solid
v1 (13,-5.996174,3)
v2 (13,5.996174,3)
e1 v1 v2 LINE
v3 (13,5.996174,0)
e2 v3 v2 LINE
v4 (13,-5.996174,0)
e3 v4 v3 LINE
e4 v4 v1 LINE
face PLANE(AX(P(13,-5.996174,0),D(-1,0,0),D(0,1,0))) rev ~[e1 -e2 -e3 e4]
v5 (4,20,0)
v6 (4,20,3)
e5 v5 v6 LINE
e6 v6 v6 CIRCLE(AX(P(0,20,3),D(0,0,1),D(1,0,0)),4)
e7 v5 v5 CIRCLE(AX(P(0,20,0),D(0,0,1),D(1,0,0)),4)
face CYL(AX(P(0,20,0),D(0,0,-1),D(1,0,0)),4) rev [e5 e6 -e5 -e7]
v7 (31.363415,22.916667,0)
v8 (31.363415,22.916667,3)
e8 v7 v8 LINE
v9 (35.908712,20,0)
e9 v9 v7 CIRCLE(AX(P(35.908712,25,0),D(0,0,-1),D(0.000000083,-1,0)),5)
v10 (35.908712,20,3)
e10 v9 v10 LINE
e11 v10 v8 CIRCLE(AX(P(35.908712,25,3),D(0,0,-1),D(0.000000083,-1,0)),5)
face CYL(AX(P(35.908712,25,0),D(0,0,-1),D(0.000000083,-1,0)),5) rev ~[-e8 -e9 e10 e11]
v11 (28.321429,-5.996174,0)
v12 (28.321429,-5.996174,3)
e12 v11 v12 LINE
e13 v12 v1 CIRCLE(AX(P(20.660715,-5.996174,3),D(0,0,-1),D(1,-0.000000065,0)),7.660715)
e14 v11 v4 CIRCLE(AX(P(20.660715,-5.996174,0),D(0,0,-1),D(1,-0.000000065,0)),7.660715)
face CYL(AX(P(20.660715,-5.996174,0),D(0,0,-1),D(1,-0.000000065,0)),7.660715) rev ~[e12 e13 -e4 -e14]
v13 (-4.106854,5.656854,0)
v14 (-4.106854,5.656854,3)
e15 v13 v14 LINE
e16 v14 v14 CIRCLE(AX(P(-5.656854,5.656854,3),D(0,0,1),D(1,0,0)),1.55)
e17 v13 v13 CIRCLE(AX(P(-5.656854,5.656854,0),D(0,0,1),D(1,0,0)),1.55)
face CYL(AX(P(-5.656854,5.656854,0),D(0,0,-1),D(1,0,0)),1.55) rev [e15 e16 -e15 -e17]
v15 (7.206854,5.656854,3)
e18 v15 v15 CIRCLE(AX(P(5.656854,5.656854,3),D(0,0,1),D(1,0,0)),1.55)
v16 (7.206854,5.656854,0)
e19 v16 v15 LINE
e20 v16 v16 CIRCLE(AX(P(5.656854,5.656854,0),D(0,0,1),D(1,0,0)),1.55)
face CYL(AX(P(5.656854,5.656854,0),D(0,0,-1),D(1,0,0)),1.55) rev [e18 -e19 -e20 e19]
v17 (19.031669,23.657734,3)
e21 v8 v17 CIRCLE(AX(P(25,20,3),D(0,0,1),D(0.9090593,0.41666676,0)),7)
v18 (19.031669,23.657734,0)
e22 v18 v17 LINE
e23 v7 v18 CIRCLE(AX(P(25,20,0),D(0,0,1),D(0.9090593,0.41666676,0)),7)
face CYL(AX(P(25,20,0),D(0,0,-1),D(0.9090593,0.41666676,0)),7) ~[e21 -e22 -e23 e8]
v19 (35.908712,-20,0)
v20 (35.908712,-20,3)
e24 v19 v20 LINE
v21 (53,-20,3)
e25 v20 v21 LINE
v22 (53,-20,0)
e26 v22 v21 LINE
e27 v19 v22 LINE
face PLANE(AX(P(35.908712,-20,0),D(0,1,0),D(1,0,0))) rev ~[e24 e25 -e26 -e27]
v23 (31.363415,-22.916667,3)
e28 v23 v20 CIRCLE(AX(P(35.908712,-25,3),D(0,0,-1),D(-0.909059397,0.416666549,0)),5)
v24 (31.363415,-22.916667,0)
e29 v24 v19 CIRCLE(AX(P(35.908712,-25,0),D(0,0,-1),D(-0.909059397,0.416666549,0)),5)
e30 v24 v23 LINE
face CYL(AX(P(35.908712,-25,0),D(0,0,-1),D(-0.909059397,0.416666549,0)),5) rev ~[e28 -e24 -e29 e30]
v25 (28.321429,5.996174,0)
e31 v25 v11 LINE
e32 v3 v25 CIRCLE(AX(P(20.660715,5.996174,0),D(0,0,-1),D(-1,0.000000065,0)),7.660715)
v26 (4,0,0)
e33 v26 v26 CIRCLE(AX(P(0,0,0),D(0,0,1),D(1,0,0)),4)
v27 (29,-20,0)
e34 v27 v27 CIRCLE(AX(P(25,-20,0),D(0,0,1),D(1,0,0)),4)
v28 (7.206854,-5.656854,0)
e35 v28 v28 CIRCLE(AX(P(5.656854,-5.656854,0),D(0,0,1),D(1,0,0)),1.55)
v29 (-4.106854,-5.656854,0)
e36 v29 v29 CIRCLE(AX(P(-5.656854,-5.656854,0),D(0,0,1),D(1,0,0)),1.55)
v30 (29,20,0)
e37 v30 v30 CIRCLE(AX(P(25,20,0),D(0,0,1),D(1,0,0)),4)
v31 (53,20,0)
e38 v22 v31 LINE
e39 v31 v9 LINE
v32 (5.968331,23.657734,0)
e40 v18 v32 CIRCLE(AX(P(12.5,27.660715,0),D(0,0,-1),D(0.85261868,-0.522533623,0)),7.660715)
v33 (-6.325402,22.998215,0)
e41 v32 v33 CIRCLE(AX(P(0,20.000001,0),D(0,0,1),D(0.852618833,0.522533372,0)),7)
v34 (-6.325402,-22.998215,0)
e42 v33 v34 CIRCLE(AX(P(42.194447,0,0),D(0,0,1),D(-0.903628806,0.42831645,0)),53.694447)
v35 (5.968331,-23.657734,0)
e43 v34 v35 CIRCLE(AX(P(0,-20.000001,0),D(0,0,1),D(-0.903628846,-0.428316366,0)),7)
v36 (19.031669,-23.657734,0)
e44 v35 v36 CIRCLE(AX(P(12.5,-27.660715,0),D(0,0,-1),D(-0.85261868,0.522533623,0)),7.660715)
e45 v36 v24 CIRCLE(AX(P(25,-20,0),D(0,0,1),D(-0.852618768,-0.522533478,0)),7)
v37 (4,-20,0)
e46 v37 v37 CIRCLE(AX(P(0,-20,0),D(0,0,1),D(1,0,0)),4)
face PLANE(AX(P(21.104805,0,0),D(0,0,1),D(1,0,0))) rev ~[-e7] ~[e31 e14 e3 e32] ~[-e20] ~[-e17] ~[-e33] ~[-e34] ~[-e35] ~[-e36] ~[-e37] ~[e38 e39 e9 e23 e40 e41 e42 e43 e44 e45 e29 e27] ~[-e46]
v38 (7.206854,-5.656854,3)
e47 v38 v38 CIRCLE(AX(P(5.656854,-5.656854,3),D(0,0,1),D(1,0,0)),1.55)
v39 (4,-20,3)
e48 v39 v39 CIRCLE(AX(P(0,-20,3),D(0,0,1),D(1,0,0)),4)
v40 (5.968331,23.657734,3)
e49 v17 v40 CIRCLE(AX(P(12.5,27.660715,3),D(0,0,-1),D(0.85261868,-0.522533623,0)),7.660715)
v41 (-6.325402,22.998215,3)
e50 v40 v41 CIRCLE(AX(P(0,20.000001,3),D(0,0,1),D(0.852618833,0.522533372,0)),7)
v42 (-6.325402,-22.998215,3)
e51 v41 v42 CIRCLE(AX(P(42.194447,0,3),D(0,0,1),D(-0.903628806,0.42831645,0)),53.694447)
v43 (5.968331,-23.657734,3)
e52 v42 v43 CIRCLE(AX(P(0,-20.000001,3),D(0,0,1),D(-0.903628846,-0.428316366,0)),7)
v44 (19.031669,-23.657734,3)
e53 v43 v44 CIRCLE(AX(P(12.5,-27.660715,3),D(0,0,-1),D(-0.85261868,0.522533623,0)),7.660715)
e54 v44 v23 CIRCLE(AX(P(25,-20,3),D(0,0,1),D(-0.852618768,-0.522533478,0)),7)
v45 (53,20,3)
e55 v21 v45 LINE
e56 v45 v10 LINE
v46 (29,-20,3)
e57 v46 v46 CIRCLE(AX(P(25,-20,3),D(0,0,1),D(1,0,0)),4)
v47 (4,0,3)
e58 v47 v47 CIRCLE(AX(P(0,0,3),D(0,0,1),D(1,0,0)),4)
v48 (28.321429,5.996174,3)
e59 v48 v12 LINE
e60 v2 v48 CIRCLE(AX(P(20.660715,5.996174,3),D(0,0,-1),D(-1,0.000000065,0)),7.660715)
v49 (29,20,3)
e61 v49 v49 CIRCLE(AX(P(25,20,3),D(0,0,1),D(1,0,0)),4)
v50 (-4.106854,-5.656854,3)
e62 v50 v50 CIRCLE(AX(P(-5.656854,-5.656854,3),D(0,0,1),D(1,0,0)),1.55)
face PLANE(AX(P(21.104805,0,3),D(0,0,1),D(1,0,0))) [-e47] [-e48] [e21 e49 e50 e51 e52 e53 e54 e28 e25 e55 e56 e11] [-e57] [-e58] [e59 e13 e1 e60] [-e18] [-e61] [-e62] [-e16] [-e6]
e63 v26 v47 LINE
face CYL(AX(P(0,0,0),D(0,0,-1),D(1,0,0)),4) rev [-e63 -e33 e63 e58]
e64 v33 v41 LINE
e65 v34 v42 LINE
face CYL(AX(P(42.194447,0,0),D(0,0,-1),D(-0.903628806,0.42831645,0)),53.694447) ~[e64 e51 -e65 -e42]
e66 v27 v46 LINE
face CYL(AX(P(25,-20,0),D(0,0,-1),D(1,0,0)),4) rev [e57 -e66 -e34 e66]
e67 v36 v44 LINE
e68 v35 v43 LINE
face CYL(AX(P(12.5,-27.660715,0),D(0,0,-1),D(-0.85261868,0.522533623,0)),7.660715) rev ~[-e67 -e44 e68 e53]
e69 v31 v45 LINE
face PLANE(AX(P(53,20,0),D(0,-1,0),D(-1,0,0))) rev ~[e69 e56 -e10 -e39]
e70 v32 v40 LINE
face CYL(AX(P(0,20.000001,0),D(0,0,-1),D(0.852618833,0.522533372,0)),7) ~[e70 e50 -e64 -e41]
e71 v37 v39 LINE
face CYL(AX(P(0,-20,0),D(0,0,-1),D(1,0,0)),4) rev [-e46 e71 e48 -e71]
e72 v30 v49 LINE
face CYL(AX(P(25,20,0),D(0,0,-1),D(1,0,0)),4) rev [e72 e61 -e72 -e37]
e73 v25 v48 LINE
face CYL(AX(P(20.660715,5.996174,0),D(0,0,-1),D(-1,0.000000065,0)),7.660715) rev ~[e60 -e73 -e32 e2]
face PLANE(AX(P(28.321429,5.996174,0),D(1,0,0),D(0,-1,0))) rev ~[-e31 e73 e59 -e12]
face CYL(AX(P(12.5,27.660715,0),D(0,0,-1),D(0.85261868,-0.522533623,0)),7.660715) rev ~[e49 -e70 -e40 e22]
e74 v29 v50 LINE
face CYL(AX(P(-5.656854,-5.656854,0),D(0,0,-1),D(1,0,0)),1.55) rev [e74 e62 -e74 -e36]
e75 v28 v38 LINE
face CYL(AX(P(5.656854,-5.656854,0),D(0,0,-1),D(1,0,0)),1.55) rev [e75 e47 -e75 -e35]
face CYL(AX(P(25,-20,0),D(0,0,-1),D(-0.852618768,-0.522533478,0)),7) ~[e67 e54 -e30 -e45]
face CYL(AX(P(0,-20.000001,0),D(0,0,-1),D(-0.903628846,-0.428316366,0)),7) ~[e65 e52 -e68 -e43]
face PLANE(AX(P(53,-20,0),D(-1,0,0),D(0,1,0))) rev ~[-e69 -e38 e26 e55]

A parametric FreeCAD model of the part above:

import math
import FreeCAD as App
import Part
import Sketcher

V = App.Vector

doc = App.newDocument("Part")
body = doc.addObject("PartDesign::Body", "Body")

# Sketch on XY plane
sketch1 = doc.addObject("Sketcher::SketchObject", "Sketch")
body.addObject(sketch1)
sketch1.AttachmentSupport = (doc.XY_Plane, [""])
sketch1.MapMode = "FlatFace"
sketch1.addGeometry(Part.ArcOfCircle(Part.Circle(V(12.5, 27.7, 0), V(0, 0, 1), 7.7), math.radians(-148), math.radians(-32)), False)
sketch1.addGeometry(Part.ArcOfCircle(Part.Circle(V(0, 20, 0), V(0, 0, 1), 7), math.radians(32), math.radians(155)), False)
sketch1.addGeometry(Part.ArcOfCircle(Part.Circle(V(42.2, 0, 0), V(0, 0, 1), 53.7), math.radians(155), math.radians(205)), False)
sketch1.addGeometry(Part.ArcOfCircle(Part.Circle(V(0, -20, 0), V(0, 0, 1), 7), math.radians(-155), math.radians(-32)), False)
sketch1.addGeometry(Part.ArcOfCircle(Part.Circle(V(12.5, -27.7, 0), V(0, 0, 1), 7.7), math.radians(32), math.radians(148)), False)
sketch1.addGeometry(Part.ArcOfCircle(Part.Circle(V(25, -20, 0), V(0, 0, 1), 7), math.radians(-148), math.radians(-25)), False)
sketch1.addGeometry(Part.ArcOfCircle(Part.Circle(V(35.9, -25, 0), V(0, 0, 1), 5), math.radians(90), math.radians(155)), False)
sketch1.addGeometry(Part.LineSegment(V(35.9, -20, 0), V(53, -20, 0)), False)
sketch1.addGeometry(Part.LineSegment(V(53, -20, 0), V(53, 20, 0)), False)
sketch1.addGeometry(Part.LineSegment(V(53, 20, 0), V(35.9, 20, 0)), False)
sketch1.addGeometry(Part.ArcOfCircle(Part.Circle(V(35.9, 25, 0), V(0, 0, 1), 5), math.radians(-155), math.radians(-90)), False)
sketch1.addGeometry(Part.ArcOfCircle(Part.Circle(V(25, 20, 0), V(0, 0, 1), 7), math.radians(25), math.radians(148)), False)
sketch1.addGeometry(Part.Circle(V(0, -20, 0), V(0, 0, 1), 4), False)
sketch1.addGeometry(Part.Circle(V(-5.7, -5.7, 0), V(0, 0, 1), 1.6), False)
sketch1.addGeometry(Part.Circle(V(5.7, -5.7, 0), V(0, 0, 1), 1.6), False)
sketch1.addGeometry(Part.Circle(V(25, -20, 0), V(0, 0, 1), 4), False)
sketch1.addGeometry(Part.Circle(V(-5.7, 5.7, 0), V(0, 0, 1), 1.6), False)
sketch1.addGeometry(Part.Circle(V(0, 0, 0), V(0, 0, 1), 4), False)
sketch1.addGeometry(Part.Circle(V(5.7, 5.7, 0), V(0, 0, 1), 1.6), False)
sketch1.addGeometry(Part.Circle(V(0, 20, 0), V(0, 0, 1), 4), False)
sketch1.addGeometry(Part.LineSegment(V(13, -6, 0), V(13, 6, 0)), False)
sketch1.addGeometry(Part.ArcOfCircle(Part.Circle(V(20.7, 6, 0), V(0, 0, 1), 7.7), math.radians(0), math.radians(180)), False)
sketch1.addGeometry(Part.LineSegment(V(28.3, 6, 0), V(28.3, -6, 0)), False)
sketch1.addGeometry(Part.ArcOfCircle(Part.Circle(V(20.7, -6, 0), V(0, 0, 1), 7.7), math.radians(-180), math.radians(0)), False)
sketch1.addGeometry(Part.Circle(V(25, 20, 0), V(0, 0, 1), 4), False)
sketch1.addConstraint(Sketcher.Constraint("Tangent", 0, 1, 1, 1))
sketch1.addConstraint(Sketcher.Constraint("Tangent", 1, 2, 2, 1))
sketch1.addConstraint(Sketcher.Constraint("Tangent", 2, 2, 3, 1))
sketch1.addConstraint(Sketcher.Constraint("Tangent", 3, 2, 4, 2))
sketch1.addConstraint(Sketcher.Constraint("Tangent", 4, 1, 5, 1))
sketch1.addConstraint(Sketcher.Constraint("Tangent", 5, 2, 6, 2))
sketch1.addConstraint(Sketcher.Constraint("Tangent", 6, 1, 7, 1))
sketch1.addConstraint(Sketcher.Constraint("Coincident", 7, 2, 8, 1))
sketch1.addConstraint(Sketcher.Constraint("Coincident", 8, 2, 9, 1))
sketch1.addConstraint(Sketcher.Constraint("Tangent", 9, 2, 10, 2))
sketch1.addConstraint(Sketcher.Constraint("Tangent", 10, 1, 11, 1))
sketch1.addConstraint(Sketcher.Constraint("Tangent", 11, 2, 0, 2))
sketch1.addConstraint(Sketcher.Constraint("Tangent", 20, 2, 21, 2))
sketch1.addConstraint(Sketcher.Constraint("Tangent", 21, 1, 22, 1))
sketch1.addConstraint(Sketcher.Constraint("Tangent", 22, 2, 23, 2))
sketch1.addConstraint(Sketcher.Constraint("Tangent", 23, 1, 20, 1))
sketch1.addConstraint(Sketcher.Constraint("Horizontal", 7))
sketch1.addConstraint(Sketcher.Constraint("Vertical", 8))
sketch1.addConstraint(Sketcher.Constraint("Horizontal", 9))
sketch1.addConstraint(Sketcher.Constraint("Vertical", 20))
sketch1.addConstraint(Sketcher.Constraint("Vertical", 22))
sketch1.addConstraint(Sketcher.Constraint("Coincident", 17, 3, -1, 1))
sketch1.addConstraint(Sketcher.Constraint("Coincident", 12, 3, 3, 3))
sketch1.addConstraint(Sketcher.Constraint("Coincident", 15, 3, 5, 3))
sketch1.addConstraint(Sketcher.Constraint("Coincident", 19, 3, 1, 3))
sketch1.addConstraint(Sketcher.Constraint("Coincident", 24, 3, 11, 3))
sketch1.addConstraint(Sketcher.Constraint("Equal", 1, 3))
sketch1.addConstraint(Sketcher.Constraint("Equal", 0, 4))
sketch1.addConstraint(Sketcher.Constraint("Equal", 3, 5))
sketch1.addConstraint(Sketcher.Constraint("Equal", 6, 10))
sketch1.addConstraint(Sketcher.Constraint("Equal", 5, 11))
sketch1.addConstraint(Sketcher.Constraint("Equal", 13, 14))
sketch1.addConstraint(Sketcher.Constraint("Equal", 12, 15))
sketch1.addConstraint(Sketcher.Constraint("Equal", 14, 16))
sketch1.addConstraint(Sketcher.Constraint("Equal", 15, 17))
sketch1.addConstraint(Sketcher.Constraint("Equal", 16, 18))
sketch1.addConstraint(Sketcher.Constraint("Equal", 17, 19))
sketch1.addConstraint(Sketcher.Constraint("Equal", 4, 21))
sketch1.addConstraint(Sketcher.Constraint("Equal", 19, 24))
sketch1.addConstraint(Sketcher.Constraint("Symmetric", 1, 3, 3, 3, -1, 1))
sketch1.addConstraint(Sketcher.Constraint("Symmetric", 14, 3, 16, 3, -1, 1))
sketch1.addConstraint(Sketcher.Constraint("Symmetric", 13, 3, 18, 3, -1, 1))
sketch1.addConstraint(Sketcher.Constraint("Symmetric", 13, 3, 14, 3, -2))
sketch1.addConstraint(Sketcher.Constraint("Symmetric", 0, 3, 4, 3, -1))
sketch1.addConstraint(Sketcher.Constraint("Symmetric", 6, 3, 10, 3, -1))
sketch1.addConstraint(Sketcher.Constraint("Horizontal", 3, 3, 5, 3))
sketch1.addConstraint(Sketcher.Constraint("Horizontal", 15, 3, 6, 1))
sketch1.addConstraint(Sketcher.Constraint("Diameter", 12, 8.0))
sketch1.addConstraint(Sketcher.Constraint("Radius", 1, 7.0))
sketch1.addConstraint(Sketcher.Constraint("Radius", 6, 5.0))
sketch1.addConstraint(Sketcher.Constraint("Diameter", 13, 3.1))
sketch1.addConstraint(Sketcher.Constraint("DistanceY", 8, 1, 8, 2, 40.0))
sketch1.addConstraint(Sketcher.Constraint("DistanceX", -1, 1, 5, 3, 25.0))
sketch1.addConstraint(Sketcher.Constraint("DistanceX", -1, 1, 7, 2, 53.0))
sketch1.addConstraint(Sketcher.Constraint("DistanceX", -1, 1, 20, 2, 13.0))
sketch1.addConstraint(Sketcher.Constraint("Radius", 0, 7.660715))
sketch1.addConstraint(Sketcher.Constraint("Radius", 2, 53.694447))
sketch1.addConstraint(Sketcher.Constraint("DistanceY", 20, 1, 20, 2, 11.992348))
sketch1.addConstraint(Sketcher.Constraint("DistanceY", 4, 3, 13, 3, 22.003861))
sketch1.addConstraint(Sketcher.Constraint("DistanceX", 18, 3, 21, 3, 15.003861))
sketch1.addConstraint(Sketcher.Constraint("DistanceY", 18, 3, 21, 3, 0.33932))
pad1 = doc.addObject("PartDesign::Pad", "Pad")
body.addObject(pad1)
pad1.Profile = sketch1
pad1.Length = 3

doc.recompute()
